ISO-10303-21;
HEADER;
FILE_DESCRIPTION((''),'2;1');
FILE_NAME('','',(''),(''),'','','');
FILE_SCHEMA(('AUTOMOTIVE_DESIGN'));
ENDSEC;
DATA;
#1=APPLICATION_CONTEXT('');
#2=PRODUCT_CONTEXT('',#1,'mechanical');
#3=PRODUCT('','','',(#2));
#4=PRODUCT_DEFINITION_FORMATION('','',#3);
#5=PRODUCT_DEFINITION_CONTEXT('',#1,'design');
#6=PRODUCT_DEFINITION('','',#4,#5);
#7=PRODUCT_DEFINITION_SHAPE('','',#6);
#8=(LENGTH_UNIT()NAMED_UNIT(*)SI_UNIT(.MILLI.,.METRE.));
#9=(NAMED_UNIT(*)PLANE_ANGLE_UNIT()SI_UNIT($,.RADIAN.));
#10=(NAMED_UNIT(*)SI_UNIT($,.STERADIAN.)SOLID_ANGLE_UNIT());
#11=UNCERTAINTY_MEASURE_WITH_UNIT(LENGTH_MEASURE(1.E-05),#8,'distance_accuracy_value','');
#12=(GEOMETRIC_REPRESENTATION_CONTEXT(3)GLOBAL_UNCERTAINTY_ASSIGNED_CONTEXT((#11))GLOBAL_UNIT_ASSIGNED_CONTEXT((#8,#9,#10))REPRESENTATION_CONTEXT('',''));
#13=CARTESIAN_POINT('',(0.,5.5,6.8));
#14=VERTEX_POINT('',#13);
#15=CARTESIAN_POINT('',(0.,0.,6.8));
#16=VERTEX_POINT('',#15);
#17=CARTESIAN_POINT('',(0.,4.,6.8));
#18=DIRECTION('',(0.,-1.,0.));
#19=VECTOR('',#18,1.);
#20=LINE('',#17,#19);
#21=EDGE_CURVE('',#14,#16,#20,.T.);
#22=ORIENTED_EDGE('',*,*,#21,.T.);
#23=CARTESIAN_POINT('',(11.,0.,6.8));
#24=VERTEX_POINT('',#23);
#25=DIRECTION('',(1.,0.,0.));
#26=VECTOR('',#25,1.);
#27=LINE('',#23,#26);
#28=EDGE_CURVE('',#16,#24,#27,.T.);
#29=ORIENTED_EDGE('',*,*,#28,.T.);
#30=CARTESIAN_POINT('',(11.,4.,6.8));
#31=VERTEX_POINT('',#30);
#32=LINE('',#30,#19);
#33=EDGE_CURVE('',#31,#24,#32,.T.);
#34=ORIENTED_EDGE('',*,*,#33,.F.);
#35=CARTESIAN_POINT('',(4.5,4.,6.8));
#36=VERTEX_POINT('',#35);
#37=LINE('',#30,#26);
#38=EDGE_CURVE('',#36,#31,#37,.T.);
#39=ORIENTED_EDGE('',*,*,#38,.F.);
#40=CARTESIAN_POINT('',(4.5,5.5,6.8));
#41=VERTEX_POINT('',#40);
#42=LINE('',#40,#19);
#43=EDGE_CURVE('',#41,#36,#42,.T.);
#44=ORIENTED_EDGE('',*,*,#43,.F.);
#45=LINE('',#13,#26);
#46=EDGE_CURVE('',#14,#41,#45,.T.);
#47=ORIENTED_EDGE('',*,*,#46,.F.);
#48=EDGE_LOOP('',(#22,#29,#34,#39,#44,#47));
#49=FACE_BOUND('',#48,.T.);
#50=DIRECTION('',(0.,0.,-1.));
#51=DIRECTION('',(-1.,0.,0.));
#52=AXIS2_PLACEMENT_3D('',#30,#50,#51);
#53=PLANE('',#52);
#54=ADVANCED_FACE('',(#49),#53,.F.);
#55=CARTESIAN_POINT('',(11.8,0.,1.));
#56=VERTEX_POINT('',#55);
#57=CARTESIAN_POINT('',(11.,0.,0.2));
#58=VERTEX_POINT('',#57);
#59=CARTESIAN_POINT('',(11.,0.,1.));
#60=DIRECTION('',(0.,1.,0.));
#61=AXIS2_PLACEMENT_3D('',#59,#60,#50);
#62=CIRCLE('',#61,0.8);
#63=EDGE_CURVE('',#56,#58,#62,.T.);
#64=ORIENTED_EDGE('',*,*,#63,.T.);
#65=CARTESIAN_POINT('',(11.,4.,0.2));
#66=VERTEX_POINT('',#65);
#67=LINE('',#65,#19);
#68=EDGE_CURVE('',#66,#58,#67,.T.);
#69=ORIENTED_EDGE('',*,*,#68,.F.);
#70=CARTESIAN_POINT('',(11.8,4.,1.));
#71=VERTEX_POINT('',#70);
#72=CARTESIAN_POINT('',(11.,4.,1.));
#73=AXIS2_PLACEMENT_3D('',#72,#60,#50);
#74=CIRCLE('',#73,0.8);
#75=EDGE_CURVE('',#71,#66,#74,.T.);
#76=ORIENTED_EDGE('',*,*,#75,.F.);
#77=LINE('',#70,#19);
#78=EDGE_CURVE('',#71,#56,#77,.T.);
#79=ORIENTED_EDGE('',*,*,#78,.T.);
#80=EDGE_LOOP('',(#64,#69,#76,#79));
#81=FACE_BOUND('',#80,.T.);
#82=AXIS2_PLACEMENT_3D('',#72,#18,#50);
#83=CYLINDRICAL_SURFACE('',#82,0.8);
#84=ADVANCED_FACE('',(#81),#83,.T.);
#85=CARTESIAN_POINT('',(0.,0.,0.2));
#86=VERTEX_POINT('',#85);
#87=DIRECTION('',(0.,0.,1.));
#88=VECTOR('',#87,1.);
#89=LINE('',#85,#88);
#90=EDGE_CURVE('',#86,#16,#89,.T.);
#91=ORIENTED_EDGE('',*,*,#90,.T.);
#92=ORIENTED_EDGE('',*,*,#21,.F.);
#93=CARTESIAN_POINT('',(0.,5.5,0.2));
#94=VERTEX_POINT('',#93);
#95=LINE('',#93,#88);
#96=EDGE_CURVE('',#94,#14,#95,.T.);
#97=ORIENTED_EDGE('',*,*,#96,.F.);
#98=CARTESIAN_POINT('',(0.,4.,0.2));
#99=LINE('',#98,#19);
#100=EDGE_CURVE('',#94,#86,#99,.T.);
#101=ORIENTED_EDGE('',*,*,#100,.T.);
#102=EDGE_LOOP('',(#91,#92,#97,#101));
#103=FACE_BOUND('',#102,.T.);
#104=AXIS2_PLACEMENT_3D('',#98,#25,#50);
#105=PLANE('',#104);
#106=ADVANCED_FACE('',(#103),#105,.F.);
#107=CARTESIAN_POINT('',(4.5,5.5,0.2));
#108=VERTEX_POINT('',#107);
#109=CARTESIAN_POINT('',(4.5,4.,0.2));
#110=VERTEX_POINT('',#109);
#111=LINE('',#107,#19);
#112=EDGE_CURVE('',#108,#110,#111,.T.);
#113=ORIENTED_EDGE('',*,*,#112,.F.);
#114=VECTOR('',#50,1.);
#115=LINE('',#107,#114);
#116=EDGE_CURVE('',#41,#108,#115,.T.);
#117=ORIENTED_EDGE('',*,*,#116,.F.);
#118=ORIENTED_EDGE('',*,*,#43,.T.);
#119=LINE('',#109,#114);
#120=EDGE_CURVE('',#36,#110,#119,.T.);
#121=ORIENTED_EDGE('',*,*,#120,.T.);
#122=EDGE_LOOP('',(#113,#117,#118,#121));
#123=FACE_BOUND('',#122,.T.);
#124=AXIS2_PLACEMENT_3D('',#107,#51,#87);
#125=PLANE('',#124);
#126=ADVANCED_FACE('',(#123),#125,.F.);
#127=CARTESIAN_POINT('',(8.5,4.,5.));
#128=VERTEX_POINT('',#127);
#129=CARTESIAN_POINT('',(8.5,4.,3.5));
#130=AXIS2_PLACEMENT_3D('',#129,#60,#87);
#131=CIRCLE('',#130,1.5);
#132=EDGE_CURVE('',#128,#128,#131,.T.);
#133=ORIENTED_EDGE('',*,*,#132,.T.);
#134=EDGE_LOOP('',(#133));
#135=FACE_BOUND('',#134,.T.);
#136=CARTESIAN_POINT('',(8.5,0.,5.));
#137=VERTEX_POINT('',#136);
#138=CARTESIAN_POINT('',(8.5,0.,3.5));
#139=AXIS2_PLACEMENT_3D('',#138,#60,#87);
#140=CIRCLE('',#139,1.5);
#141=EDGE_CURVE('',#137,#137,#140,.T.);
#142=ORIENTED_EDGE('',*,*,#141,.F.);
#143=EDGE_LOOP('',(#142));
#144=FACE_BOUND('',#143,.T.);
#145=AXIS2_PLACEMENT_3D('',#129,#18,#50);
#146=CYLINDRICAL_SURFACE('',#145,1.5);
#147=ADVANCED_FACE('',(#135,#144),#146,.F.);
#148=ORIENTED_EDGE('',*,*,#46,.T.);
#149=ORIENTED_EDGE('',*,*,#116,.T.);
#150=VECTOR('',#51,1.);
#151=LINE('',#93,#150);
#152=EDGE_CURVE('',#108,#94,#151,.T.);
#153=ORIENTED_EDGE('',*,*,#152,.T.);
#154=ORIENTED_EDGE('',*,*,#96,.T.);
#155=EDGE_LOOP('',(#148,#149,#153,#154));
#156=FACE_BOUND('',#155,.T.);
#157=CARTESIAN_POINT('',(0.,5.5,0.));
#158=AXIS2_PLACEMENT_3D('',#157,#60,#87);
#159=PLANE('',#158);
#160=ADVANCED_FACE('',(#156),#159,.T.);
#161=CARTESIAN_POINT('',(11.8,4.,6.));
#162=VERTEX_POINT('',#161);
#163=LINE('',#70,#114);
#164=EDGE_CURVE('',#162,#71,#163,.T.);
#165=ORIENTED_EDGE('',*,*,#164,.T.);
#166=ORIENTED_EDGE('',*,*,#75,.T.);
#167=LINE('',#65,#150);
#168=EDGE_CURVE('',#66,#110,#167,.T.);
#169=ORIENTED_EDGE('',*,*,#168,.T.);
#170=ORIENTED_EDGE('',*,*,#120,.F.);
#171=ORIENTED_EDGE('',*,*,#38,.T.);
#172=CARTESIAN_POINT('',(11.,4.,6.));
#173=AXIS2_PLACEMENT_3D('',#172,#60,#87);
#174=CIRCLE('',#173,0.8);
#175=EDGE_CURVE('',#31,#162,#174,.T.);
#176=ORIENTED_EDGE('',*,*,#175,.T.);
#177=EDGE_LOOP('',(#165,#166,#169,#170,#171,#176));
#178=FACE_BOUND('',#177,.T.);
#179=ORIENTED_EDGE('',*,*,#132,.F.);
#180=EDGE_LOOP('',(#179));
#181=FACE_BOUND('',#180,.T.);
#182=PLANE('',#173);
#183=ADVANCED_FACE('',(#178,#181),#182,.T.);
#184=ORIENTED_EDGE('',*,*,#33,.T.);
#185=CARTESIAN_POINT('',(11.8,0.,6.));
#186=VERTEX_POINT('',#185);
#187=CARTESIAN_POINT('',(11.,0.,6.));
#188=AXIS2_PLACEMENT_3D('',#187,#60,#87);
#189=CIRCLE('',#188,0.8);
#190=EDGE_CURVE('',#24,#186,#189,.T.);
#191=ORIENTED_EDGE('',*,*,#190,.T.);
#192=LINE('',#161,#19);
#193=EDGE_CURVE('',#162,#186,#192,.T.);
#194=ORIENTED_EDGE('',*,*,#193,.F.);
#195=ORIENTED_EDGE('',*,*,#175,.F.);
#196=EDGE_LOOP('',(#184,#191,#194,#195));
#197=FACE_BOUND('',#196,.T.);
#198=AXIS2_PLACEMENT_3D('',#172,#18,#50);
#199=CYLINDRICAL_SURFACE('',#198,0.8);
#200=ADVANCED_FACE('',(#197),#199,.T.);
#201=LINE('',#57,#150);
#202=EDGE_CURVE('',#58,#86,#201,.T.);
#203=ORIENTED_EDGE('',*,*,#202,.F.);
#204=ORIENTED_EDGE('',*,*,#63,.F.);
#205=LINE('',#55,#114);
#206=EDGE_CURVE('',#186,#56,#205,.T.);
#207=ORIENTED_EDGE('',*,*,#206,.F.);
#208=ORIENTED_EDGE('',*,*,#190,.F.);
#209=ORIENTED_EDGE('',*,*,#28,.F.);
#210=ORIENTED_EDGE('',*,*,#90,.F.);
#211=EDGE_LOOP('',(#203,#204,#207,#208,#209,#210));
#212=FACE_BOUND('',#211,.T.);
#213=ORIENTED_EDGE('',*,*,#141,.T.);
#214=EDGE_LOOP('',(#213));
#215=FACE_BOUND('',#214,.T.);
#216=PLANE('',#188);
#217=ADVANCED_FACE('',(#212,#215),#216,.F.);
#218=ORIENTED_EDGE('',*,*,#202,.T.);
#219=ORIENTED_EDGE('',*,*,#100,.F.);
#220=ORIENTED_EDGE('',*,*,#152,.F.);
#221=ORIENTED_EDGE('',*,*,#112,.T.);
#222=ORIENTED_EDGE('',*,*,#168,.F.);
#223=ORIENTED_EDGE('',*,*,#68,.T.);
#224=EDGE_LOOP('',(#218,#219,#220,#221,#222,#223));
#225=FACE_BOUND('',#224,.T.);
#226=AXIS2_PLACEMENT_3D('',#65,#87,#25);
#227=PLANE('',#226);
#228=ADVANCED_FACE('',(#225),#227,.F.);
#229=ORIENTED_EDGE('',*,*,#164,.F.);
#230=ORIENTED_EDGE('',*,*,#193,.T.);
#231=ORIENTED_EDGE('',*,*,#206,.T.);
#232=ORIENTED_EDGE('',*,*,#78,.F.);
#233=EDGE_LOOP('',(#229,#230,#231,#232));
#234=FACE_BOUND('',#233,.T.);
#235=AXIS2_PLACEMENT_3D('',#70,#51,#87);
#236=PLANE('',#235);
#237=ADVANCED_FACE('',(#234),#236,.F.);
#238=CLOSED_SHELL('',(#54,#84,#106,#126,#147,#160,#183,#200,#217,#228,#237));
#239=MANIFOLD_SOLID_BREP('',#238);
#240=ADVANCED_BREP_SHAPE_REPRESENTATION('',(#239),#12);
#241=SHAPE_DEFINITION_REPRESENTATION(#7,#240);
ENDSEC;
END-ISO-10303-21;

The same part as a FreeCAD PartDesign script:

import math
import FreeCAD as App
import Part
import Sketcher

V = App.Vector


def add_polygon(sketch, points):
    """Adds a closed chain of lines whose ends are joined by coincident constraints."""
    first, n = sketch.GeometryCount, len(points)
    for a, b in zip(points, points[1:] + points[:1]):
        sketch.addGeometry(Part.LineSegment(App.Vector(*a, 0), App.Vector(*b, 0)), False)
    for i in range(n):
        sketch.addConstraint(Sketcher.Constraint("Coincident", first + i, 2, first + (i + 1) % n, 1))

doc = App.newDocument("Part")
body = doc.addObject("PartDesign::Body", "Body")

# Sketch on XZ plane
sketch1 = doc.addObject("Sketcher::SketchObject", "Sketch")
body.addObject(sketch1)
sketch1.AttachmentSupport = (doc.XZ_Plane, [""])
sketch1.MapMode = "FlatFace"
sketch1.addGeometry(Part.LineSegment(V(11.8, 6, 0), V(11.8, 1, 0)), False)
sketch1.addGeometry(Part.ArcOfCircle(Part.Circle(V(11, 1, 0), V(0, 0, 1), 0.8), math.radians(-90), math.radians(0)), False)
sketch1.addGeometry(Part.LineSegment(V(11, 0.2, 0), V(0, 0.2, 0)), False)
sketch1.addGeometry(Part.LineSegment(V(0, 0.2, 0), V(0, 6.8, 0)), False)
sketch1.addGeometry(Part.LineSegment(V(0, 6.8, 0), V(11, 6.8, 0)), False)
sketch1.addGeometry(Part.ArcOfCircle(Part.Circle(V(11, 6, 0), V(0, 0, 1), 0.8), math.radians(0), math.radians(90)), False)
sketch1.addGeometry(Part.Circle(V(8.5, 3.5, 0), V(0, 0, 1), 1.5), False)
sketch1.addConstraint(Sketcher.Constraint("Tangent", 0, 2, 1, 2))
sketch1.addConstraint(Sketcher.Constraint("Tangent", 1, 1, 2, 1))
sketch1.addConstraint(Sketcher.Constraint("Coincident", 2, 2, 3, 1))
sketch1.addConstraint(Sketcher.Constraint("Coincident", 3, 2, 4, 1))
sketch1.addConstraint(Sketcher.Constraint("Tangent", 4, 2, 5, 2))
sketch1.addConstraint(Sketcher.Constraint("Tangent", 5, 1, 0, 1))
sketch1.addConstraint(Sketcher.Constraint("Vertical", 0))
sketch1.addConstraint(Sketcher.Constraint("Horizontal", 2))
sketch1.addConstraint(Sketcher.Constraint("Vertical", 3))
sketch1.addConstraint(Sketcher.Constraint("Horizontal", 4))
sketch1.addConstraint(Sketcher.Constraint("Equal", 1, 5))
sketch1.addConstraint(Sketcher.Constraint("PointOnObject", 2, 2, -2))
sketch1.addConstraint(Sketcher.Constraint("Diameter", 6, 3.0))
sketch1.addConstraint(Sketcher.Constraint("Radius", 1, 0.8))
sketch1.addConstraint(Sketcher.Constraint("DistanceX", 2, 2, 2, 1, 11.0))
sketch1.addConstraint(Sketcher.Constraint("DistanceY", 0, 2, 0, 1, 5.0))
sketch1.addConstraint(Sketcher.Constraint("DistanceY", -1, 1, 1, 3, 1.0))
sketch1.addConstraint(Sketcher.Constraint("DistanceX", -1, 1, 6, 3, 8.5))
sketch1.addConstraint(Sketcher.Constraint("DistanceY", -1, 1, 6, 3, 3.5))
pad1 = doc.addObject("PartDesign::Pad", "Pad")
body.addObject(pad1)
pad1.Profile = sketch1
pad1.Length = 4
pad1.Reversed = True

# Sketch on XZ plane
sketch2 = doc.addObject("Sketcher::SketchObject", "Sketch001")
body.addObject(sketch2)
sketch2.AttachmentSupport = (doc.XZ_Plane, [""])
sketch2.MapMode = "FlatFace"
sketch2.AttachmentOffset = App.Placement(V(0, 0, -4), App.Rotation())
add_polygon(sketch2, [(0, 0.2), (0, 6.8), (4.5, 6.8), (4.5, 0.2)])  # lines 0-3
sketch2.addConstraint(Sketcher.Constraint("Vertical", 0))
sketch2.addConstraint(Sketcher.Constraint("Horizontal", 1))
sketch2.addConstraint(Sketcher.Constraint("Vertical", 2))
sketch2.addConstraint(Sketcher.Constraint("Horizontal", 3))
sketch2.addConstraint(Sketcher.Constraint("PointOnObject", 0, 2, -2))
sketch2.addConstraint(Sketcher.Constraint("DistanceX", 1, 1, 1, 2, 4.5))
sketch2.addConstraint(Sketcher.Constraint("DistanceY", 0, 1, 0, 2, 6.6))
sketch2.addConstraint(Sketcher.Constraint("DistanceY", -1, 1, 0, 2, 6.8))
pad2 = doc.addObject("PartDesign::Pad", "Pad001")
body.addObject(pad2)
pad2.Profile = sketch2
pad2.Length = 1.5
pad2.Reversed = True

doc.recompute()
